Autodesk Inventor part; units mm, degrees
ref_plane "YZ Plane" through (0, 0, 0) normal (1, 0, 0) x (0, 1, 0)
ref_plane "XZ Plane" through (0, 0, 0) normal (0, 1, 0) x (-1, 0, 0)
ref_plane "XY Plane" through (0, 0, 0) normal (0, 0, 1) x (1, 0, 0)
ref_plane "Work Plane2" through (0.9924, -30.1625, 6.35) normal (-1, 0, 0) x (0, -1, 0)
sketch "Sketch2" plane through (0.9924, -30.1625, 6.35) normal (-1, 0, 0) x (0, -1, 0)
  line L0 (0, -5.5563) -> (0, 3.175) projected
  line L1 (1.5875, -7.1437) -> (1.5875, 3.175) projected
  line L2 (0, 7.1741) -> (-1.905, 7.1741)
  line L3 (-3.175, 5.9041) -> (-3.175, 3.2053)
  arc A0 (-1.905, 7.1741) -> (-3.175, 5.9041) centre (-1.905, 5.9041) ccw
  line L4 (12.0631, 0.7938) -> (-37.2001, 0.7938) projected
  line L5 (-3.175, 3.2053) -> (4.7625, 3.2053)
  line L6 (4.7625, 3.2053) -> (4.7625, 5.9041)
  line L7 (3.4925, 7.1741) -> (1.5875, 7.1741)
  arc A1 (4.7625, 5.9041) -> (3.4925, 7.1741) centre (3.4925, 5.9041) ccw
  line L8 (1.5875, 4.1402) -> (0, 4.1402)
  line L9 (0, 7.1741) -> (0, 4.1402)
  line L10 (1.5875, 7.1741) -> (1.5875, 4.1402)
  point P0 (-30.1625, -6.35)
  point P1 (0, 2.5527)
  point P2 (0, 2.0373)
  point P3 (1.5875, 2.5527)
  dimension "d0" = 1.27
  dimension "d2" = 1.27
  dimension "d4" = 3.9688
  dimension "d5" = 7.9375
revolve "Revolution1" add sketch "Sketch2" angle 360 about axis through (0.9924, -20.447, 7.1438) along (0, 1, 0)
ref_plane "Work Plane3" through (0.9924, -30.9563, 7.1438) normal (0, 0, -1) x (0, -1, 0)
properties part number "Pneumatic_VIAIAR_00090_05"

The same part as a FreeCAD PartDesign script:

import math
import FreeCAD as App
import Part
import Sketcher

V = App.Vector
Q = App.Units.Quantity

doc = App.newDocument("Part")
body = doc.addObject("PartDesign::Body", "Body")

# Sketch on YZ plane
sketch1 = doc.addObject("Sketcher::SketchObject", "Sketch")
body.addObject(sketch1)
sketch1.AttachmentSupport = (doc.YZ_Plane, [""])
sketch1.MapMode = "FlatFace"
sketch1.AttachmentOffset = App.Placement(V(0, 0, 0.9924), App.Rotation())
sketch1.addGeometry([
    Part.LineSegment(V(-30.2, 10.5, 0), V(-30.2, 13.5, 0)),  # 0
    Part.LineSegment(V(-30.2, 13.5, 0), V(-28.3, 13.5, 0)),  # 1
    Part.ArcOfCircle(Part.Circle(V(-28.3, 12.3, 0), V(0, 0, 1), 1.3), math.radians(0), math.radians(90)),  # 2
    Part.LineSegment(V(-27, 12.3, 0), V(-27, 9.6, 0)),  # 3
    Part.LineSegment(V(-27, 9.6, 0), V(-34.9, 9.6, 0)),  # 4
    Part.LineSegment(V(-34.9, 9.6, 0), V(-34.9, 12.3, 0)),  # 5
    Part.ArcOfCircle(Part.Circle(V(-33.7, 12.3, 0), V(0, 0, 1), 1.3), math.radians(90), math.radians(180)),  # 6
    Part.LineSegment(V(-33.7, 13.5, 0), V(-31.8, 13.5, 0)),  # 7
    Part.LineSegment(V(-31.8, 13.5, 0), V(-31.8, 10.5, 0)),  # 8
    Part.LineSegment(V(-31.8, 10.5, 0), V(-30.2, 10.5, 0)),  # 9
], False)
sketch1.addGeometry(Part.LineSegment(V(-34.9, 7.1, 0), V(-27, 7.1, 0)), True)  # axis
sketch1.addConstraint([
    Sketcher.Constraint("Coincident", 0, 2, 1, 1),
    Sketcher.Constraint("Tangent", 1, 2, 2, 2),
    Sketcher.Constraint("Tangent", 2, 1, 3, 1),
    Sketcher.Constraint("Coincident", 3, 2, 4, 1),
    Sketcher.Constraint("Coincident", 4, 2, 5, 1),
    Sketcher.Constraint("Tangent", 5, 2, 6, 2),
    Sketcher.Constraint("Tangent", 6, 1, 7, 1),
    Sketcher.Constraint("Coincident", 7, 2, 8, 1),
    Sketcher.Constraint("Coincident", 8, 2, 9, 1),
    Sketcher.Constraint("Coincident", 9, 2, 0, 1),
    Sketcher.Constraint("Vertical", 0),
    Sketcher.Constraint("Horizontal", 1),
    Sketcher.Constraint("Vertical", 3),
    Sketcher.Constraint("Horizontal", 4),
    Sketcher.Constraint("Vertical", 5),
    Sketcher.Constraint("Horizontal", 7),
    Sketcher.Constraint("Vertical", 8),
    Sketcher.Constraint("Horizontal", 9),
    Sketcher.Constraint("Horizontal", 10),
    Sketcher.Constraint("Equal", 2, 6),
    Sketcher.Constraint("Horizontal", 2, 3, 6, 3),
    Sketcher.Constraint("Vertical", 5, 2, 10, 1),
    Sketcher.Constraint("Vertical", 3, 2, 10, 2),
    Sketcher.Constraint("Equal", 1, 7),
    Sketcher.Constraint("Radius", 2, Q("0.05 in")),
    Sketcher.Constraint("DistanceX", 4, 2, 4, 1, Q("0.3125 in")),
    Sketcher.Constraint("DistanceY", 3, 2, 1, 2, Q("0.156252 in")),
    Sketcher.Constraint("DistanceX", 1, 1, 1, 2, Q("0.075 in")),
    Sketcher.Constraint("DistanceX", 7, 2, -1, 1, Q("1.25 in")),
    Sketcher.Constraint("DistanceY", -1, 1, 8, 2, Q("0.413 in")),
    Sketcher.Constraint("DistanceY", -1, 1, 10, 1, Q("0.281252 in")),
    Sketcher.Constraint("DistanceY", 0, 1, 0, 2, Q("3.034 mm")),
])
revolution = doc.addObject("PartDesign::Revolution", "Revolution")
body.addObject(revolution)
revolution.Profile = sketch1
revolution.ReferenceAxis = (sketch1, ["Axis0"])
revolution.Angle = 360

doc.recompute()
